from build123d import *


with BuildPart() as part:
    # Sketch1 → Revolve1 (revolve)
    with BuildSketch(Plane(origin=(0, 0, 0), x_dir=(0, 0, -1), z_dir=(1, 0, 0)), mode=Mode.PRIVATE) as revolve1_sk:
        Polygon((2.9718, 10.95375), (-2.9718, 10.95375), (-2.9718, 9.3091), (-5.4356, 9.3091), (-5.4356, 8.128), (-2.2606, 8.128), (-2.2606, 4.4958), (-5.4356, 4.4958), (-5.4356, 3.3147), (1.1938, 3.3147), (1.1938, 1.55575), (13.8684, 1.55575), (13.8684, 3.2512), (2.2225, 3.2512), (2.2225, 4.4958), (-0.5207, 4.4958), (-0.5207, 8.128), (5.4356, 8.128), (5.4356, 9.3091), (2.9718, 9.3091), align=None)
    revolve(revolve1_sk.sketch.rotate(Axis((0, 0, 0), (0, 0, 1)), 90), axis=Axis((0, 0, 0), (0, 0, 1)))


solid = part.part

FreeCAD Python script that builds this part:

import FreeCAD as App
import Part
import Sketcher
Q = App.Units.Quantity

doc = App.newDocument("Part")
body = doc.addObject("PartDesign::Body", "Body")

sketch1 = body.newObject("Sketcher::SketchObject", "Sketch")
sketch1.AttachmentSupport = (doc.getObject("YZ_Plane"), [""])
sketch1.MapMode = "FlatFace"
sketch1.addGeometry([
    Part.LineSegment(App.Vector(11, -3, 0), App.Vector(11, 3, 0)),
    Part.LineSegment(App.Vector(11, 3, 0), App.Vector(9.3, 3, 0)),
    Part.LineSegment(App.Vector(9.3, 3, 0), App.Vector(9.3, 5.4, 0)),
    Part.LineSegment(App.Vector(9.3, 5.4, 0), App.Vector(8.1, 5.4, 0)),
    Part.LineSegment(App.Vector(8.1, 5.4, 0), App.Vector(8.1, 2.3, 0)),
    Part.LineSegment(App.Vector(8.1, 2.3, 0), App.Vector(4.5, 2.3, 0)),
    Part.LineSegment(App.Vector(4.5, 2.3, 0), App.Vector(4.5, 5.4, 0)),
    Part.LineSegment(App.Vector(4.5, 5.4, 0), App.Vector(3.3, 5.4, 0)),
    Part.LineSegment(App.Vector(3.3, 5.4, 0), App.Vector(3.3, -1.2, 0)),
    Part.LineSegment(App.Vector(3.3, -1.2, 0), App.Vector(1.6, -1.2, 0)),
    Part.LineSegment(App.Vector(1.6, -1.2, 0), App.Vector(1.6, -13.9, 0)),
    Part.LineSegment(App.Vector(1.6, -13.9, 0), App.Vector(3.3, -13.9, 0)),
    Part.LineSegment(App.Vector(3.3, -13.9, 0), App.Vector(3.3, -2.2, 0)),
    Part.LineSegment(App.Vector(3.3, -2.2, 0), App.Vector(4.5, -2.2, 0)),
    Part.LineSegment(App.Vector(4.5, -2.2, 0), App.Vector(4.5, 0.5, 0)),
    Part.LineSegment(App.Vector(4.5, 0.5, 0), App.Vector(8.1, 0.5, 0)),
    Part.LineSegment(App.Vector(8.1, 0.5, 0), App.Vector(8.1, -5.4, 0)),
    Part.LineSegment(App.Vector(8.1, -5.4, 0), App.Vector(9.3, -5.4, 0)),
    Part.LineSegment(App.Vector(9.3, -5.4, 0), App.Vector(9.3, -3, 0)),
    Part.LineSegment(App.Vector(9.3, -3, 0), App.Vector(11, -3, 0)),
], False)
sketch1.addConstraint([
    Sketcher.Constraint("Coincident", 0, 2, 1, 1),
    Sketcher.Constraint("Coincident", 1, 2, 2, 1),
    Sketcher.Constraint("Coincident", 2, 2, 3, 1),
    Sketcher.Constraint("Coincident", 3, 2, 4, 1),
    Sketcher.Constraint("Coincident", 4, 2, 5, 1),
    Sketcher.Constraint("Coincident", 5, 2, 6, 1),
    Sketcher.Constraint("Coincident", 6, 2, 7, 1),
    Sketcher.Constraint("Coincident", 7, 2, 8, 1),
    Sketcher.Constraint("Coincident", 8, 2, 9, 1),
    Sketcher.Constraint("Coincident", 9, 2, 10, 1),
    Sketcher.Constraint("Coincident", 10, 2, 11, 1),
    Sketcher.Constraint("Coincident", 11, 2, 12, 1),
    Sketcher.Constraint("Coincident", 12, 2, 13, 1),
    Sketcher.Constraint("Coincident", 13, 2, 14, 1),
    Sketcher.Constraint("Coincident", 14, 2, 15, 1),
    Sketcher.Constraint("Coincident", 15, 2, 16, 1),
    Sketcher.Constraint("Coincident", 16, 2, 17, 1),
    Sketcher.Constraint("Coincident", 17, 2, 18, 1),
    Sketcher.Constraint("Coincident", 18, 2, 19, 1),
    Sketcher.Constraint("Coincident", 19, 2, 0, 1),
    Sketcher.Constraint("Vertical", 0),
    Sketcher.Constraint("Horizontal", 1),
    Sketcher.Constraint("Vertical", 2),
    Sketcher.Constraint("Horizontal", 3),
    Sketcher.Constraint("Vertical", 4),
    Sketcher.Constraint("Horizontal", 5),
    Sketcher.Constraint("Vertical", 6),
    Sketcher.Constraint("Horizontal", 7),
    Sketcher.Constraint("Vertical", 8),
    Sketcher.Constraint("Horizontal", 9),
    Sketcher.Constraint("Vertical", 10),
    Sketcher.Constraint("Horizontal", 11),
    Sketcher.Constraint("Vertical", 12),
    Sketcher.Constraint("Horizontal", 13),
    Sketcher.Constraint("Vertical", 14),
    Sketcher.Constraint("Horizontal", 15),
    Sketcher.Constraint("Vertical", 16),
    Sketcher.Constraint("Horizontal", 17),
    Sketcher.Constraint("Vertical", 18),
    Sketcher.Constraint("Horizontal", 19),
    Sketcher.Constraint("Symmetric", 3, 2, 16, 2, -1),
    Sketcher.Constraint("Symmetric", 1, 2, 18, 2, -1),
    Sketcher.Constraint("Horizontal", 3, 2, 6, 2),
    Sketcher.Constraint("Vertical", 6, 2, 13, 2),
    Sketcher.Constraint("Equal", 3, 7),
    Sketcher.Constraint("DistanceX", 5, 2, 5, 1, Q("0.143 in")),
    Sketcher.Constraint("DistanceX", 13, 1, 13, 2, Q("0.049 in")),
    Sketcher.Constraint("DistanceY", 0, 1, 0, 2, Q("0.234 in")),
    Sketcher.Constraint("DistanceY", 2, 1, 2, 2, Q("0.097 in")),
    Sketcher.Constraint("DistanceY", 4, 2, 4, 1, Q("0.125 in")),
    Sketcher.Constraint("DistanceY", 8, 2, 8, 1, Q("0.261 in")),
    Sketcher.Constraint("DistanceY", 10, 2, 10, 1, Q("0.499 in")),
    Sketcher.Constraint("DistanceY", 14, 1, 14, 2, Q("0.108 in")),
    Sketcher.Constraint("DistanceX", -1, 1, 3, 2, Q("0.32 in")),
    Sketcher.Constraint("DistanceX", 3, 2, 3, 1, Q("0.0465 in")),
    Sketcher.Constraint("DistanceY", 12, 1, 12, 2, Q("0.4585 in")),
    Sketcher.Constraint("DistanceX", 1, 2, 1, 1, 1.64465),
    Sketcher.Constraint("DistanceX", 9, 2, 9, 1, 1.75895),
])
revolution = body.newObject("PartDesign::Revolution", "Revolution")
revolution.Profile = sketch1
revolution.ReferenceAxis = (sketch1, ["V_Axis"])
revolution.Angle = 360

doc.recompute()
